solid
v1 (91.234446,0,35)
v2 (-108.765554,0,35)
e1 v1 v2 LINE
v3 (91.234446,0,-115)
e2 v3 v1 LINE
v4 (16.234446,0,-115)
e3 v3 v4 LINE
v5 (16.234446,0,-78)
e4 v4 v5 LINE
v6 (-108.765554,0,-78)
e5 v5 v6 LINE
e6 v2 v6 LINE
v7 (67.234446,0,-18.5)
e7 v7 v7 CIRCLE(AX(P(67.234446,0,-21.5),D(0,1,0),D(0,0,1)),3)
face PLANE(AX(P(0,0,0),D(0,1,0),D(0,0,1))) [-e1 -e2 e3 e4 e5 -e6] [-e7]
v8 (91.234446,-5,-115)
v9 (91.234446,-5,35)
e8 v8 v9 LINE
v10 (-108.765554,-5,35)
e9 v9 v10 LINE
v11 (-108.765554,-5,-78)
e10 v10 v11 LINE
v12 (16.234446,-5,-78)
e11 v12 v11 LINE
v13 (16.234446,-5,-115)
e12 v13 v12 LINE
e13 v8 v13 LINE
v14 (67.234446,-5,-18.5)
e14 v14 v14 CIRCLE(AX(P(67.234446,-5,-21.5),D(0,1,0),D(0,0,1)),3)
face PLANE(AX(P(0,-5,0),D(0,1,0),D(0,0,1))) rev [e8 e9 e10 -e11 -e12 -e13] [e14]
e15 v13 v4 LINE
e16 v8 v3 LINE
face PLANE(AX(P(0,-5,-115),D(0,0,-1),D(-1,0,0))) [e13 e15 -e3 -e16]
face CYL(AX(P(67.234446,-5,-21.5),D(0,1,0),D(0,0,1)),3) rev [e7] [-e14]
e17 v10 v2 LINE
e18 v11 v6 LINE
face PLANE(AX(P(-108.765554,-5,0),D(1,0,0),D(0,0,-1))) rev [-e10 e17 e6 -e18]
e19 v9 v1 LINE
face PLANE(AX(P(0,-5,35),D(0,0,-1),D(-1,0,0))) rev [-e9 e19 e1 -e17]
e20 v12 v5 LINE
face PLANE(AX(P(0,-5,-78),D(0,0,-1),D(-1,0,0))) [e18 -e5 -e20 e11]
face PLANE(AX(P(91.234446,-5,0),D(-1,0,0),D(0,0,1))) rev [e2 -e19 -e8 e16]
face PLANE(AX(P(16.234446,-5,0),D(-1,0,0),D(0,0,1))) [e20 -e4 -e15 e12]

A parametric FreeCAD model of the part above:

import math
import FreeCAD as App
import Part
import Sketcher


def add_polygon(sketch, points):
    """Adds a closed chain of lines whose ends are joined by coincident constraints."""
    first, n = sketch.GeometryCount, len(points)
    for a, b in zip(points, points[1:] + points[:1]):
        sketch.addGeometry(Part.LineSegment(App.Vector(*a, 0), App.Vector(*b, 0)), False)
    for i in range(n):
        sketch.addConstraint(Sketcher.Constraint("Coincident", first + i, 2, first + (i + 1) % n, 1))

doc = App.newDocument("Part")
params = doc.addObject("Spreadsheet::Sheet", "Params")
for row, (alias, value) in enumerate([
    ("sketch1_radius", "3 mm"),
    ("sketch1_width", "200 mm"),
    ("sketch1_width2", "75 mm"),
    ("sketch1_height", "150 mm"),
    ("sketch1_height2", "37 mm"),
    ("pad1_length", "5 mm"),
], start=1):
    params.set(f"A{row}", alias)
    params.set(f"B{row}", "=" + value)
    params.setAlias(f"B{row}", alias)

body = doc.addObject("PartDesign::Body", "Body")

sketch1 = body.newObject("Sketcher::SketchObject", "Sketch")
sketch1.AttachmentSupport = (doc.getObject("XZ_Plane"), [""])
sketch1.MapMode = "FlatFace"
add_polygon(sketch1, [(-108.8, 35), (91.2, 35), (91.2, -115), (16.2, -115), (16.2, -78), (-108.8, -78)])
sketch1.addGeometry(Part.ArcOfCircle(Part.Circle(App.Vector(67.2, -21.5, 0), App.Vector(0, 0, 1), 3), math.radians(0), math.radians(270)), False)
sketch1.addGeometry(Part.ArcOfCircle(Part.Circle(App.Vector(67.2, -21.5, 0), App.Vector(0, 0, 1), 3), math.radians(-90), math.radians(0)), False)
sketch1.addConstraint([
    Sketcher.Constraint("Tangent", 6, 1, 7, 2),
    Sketcher.Constraint("Coincident", 7, 1, 6, 2),
    Sketcher.Constraint("Horizontal", 0),
    Sketcher.Constraint("Vertical", 1),
    Sketcher.Constraint("Horizontal", 2),
    Sketcher.Constraint("Vertical", 3),
    Sketcher.Constraint("Horizontal", 4),
    Sketcher.Constraint("Vertical", 5),
    Sketcher.Constraint("Horizontal", 7, 3, 6, 1),
    Sketcher.Constraint("Vertical", 6, 3, 7, 1),
    Sketcher.Constraint("Radius", 6, 3.0),
    Sketcher.Constraint("DistanceX", 0, 1, 0, 2, 200.0),
    Sketcher.Constraint("DistanceX", 2, 2, 2, 1, 75.0),
    Sketcher.Constraint("DistanceY", 1, 2, 1, 1, 150.0),
    Sketcher.Constraint("DistanceY", 3, 1, 3, 2, 37.0),
    Sketcher.Constraint("DistanceY", -1, 1, 0, 2, 35.0),
    Sketcher.Constraint("DistanceX", 6, 3, 0, 2, 24.0),
    Sketcher.Constraint("DistanceY", 6, 3, -1, 1, 21.5),
    Sketcher.Constraint("DistanceX", -1, 1, 6, 3, 67.234446),
])
sketch1.setExpression("Constraints[16]", "Params.sketch1_radius")
sketch1.setExpression("Constraints[17]", "Params.sketch1_width")
sketch1.setExpression("Constraints[18]", "Params.sketch1_width2")
sketch1.setExpression("Constraints[19]", "Params.sketch1_height")
sketch1.setExpression("Constraints[20]", "Params.sketch1_height2")
pad1 = body.newObject("PartDesign::Pad", "Pad")
pad1.Profile = sketch1
pad1.setExpression("Length", "Params.pad1_length")

doc.recompute()
